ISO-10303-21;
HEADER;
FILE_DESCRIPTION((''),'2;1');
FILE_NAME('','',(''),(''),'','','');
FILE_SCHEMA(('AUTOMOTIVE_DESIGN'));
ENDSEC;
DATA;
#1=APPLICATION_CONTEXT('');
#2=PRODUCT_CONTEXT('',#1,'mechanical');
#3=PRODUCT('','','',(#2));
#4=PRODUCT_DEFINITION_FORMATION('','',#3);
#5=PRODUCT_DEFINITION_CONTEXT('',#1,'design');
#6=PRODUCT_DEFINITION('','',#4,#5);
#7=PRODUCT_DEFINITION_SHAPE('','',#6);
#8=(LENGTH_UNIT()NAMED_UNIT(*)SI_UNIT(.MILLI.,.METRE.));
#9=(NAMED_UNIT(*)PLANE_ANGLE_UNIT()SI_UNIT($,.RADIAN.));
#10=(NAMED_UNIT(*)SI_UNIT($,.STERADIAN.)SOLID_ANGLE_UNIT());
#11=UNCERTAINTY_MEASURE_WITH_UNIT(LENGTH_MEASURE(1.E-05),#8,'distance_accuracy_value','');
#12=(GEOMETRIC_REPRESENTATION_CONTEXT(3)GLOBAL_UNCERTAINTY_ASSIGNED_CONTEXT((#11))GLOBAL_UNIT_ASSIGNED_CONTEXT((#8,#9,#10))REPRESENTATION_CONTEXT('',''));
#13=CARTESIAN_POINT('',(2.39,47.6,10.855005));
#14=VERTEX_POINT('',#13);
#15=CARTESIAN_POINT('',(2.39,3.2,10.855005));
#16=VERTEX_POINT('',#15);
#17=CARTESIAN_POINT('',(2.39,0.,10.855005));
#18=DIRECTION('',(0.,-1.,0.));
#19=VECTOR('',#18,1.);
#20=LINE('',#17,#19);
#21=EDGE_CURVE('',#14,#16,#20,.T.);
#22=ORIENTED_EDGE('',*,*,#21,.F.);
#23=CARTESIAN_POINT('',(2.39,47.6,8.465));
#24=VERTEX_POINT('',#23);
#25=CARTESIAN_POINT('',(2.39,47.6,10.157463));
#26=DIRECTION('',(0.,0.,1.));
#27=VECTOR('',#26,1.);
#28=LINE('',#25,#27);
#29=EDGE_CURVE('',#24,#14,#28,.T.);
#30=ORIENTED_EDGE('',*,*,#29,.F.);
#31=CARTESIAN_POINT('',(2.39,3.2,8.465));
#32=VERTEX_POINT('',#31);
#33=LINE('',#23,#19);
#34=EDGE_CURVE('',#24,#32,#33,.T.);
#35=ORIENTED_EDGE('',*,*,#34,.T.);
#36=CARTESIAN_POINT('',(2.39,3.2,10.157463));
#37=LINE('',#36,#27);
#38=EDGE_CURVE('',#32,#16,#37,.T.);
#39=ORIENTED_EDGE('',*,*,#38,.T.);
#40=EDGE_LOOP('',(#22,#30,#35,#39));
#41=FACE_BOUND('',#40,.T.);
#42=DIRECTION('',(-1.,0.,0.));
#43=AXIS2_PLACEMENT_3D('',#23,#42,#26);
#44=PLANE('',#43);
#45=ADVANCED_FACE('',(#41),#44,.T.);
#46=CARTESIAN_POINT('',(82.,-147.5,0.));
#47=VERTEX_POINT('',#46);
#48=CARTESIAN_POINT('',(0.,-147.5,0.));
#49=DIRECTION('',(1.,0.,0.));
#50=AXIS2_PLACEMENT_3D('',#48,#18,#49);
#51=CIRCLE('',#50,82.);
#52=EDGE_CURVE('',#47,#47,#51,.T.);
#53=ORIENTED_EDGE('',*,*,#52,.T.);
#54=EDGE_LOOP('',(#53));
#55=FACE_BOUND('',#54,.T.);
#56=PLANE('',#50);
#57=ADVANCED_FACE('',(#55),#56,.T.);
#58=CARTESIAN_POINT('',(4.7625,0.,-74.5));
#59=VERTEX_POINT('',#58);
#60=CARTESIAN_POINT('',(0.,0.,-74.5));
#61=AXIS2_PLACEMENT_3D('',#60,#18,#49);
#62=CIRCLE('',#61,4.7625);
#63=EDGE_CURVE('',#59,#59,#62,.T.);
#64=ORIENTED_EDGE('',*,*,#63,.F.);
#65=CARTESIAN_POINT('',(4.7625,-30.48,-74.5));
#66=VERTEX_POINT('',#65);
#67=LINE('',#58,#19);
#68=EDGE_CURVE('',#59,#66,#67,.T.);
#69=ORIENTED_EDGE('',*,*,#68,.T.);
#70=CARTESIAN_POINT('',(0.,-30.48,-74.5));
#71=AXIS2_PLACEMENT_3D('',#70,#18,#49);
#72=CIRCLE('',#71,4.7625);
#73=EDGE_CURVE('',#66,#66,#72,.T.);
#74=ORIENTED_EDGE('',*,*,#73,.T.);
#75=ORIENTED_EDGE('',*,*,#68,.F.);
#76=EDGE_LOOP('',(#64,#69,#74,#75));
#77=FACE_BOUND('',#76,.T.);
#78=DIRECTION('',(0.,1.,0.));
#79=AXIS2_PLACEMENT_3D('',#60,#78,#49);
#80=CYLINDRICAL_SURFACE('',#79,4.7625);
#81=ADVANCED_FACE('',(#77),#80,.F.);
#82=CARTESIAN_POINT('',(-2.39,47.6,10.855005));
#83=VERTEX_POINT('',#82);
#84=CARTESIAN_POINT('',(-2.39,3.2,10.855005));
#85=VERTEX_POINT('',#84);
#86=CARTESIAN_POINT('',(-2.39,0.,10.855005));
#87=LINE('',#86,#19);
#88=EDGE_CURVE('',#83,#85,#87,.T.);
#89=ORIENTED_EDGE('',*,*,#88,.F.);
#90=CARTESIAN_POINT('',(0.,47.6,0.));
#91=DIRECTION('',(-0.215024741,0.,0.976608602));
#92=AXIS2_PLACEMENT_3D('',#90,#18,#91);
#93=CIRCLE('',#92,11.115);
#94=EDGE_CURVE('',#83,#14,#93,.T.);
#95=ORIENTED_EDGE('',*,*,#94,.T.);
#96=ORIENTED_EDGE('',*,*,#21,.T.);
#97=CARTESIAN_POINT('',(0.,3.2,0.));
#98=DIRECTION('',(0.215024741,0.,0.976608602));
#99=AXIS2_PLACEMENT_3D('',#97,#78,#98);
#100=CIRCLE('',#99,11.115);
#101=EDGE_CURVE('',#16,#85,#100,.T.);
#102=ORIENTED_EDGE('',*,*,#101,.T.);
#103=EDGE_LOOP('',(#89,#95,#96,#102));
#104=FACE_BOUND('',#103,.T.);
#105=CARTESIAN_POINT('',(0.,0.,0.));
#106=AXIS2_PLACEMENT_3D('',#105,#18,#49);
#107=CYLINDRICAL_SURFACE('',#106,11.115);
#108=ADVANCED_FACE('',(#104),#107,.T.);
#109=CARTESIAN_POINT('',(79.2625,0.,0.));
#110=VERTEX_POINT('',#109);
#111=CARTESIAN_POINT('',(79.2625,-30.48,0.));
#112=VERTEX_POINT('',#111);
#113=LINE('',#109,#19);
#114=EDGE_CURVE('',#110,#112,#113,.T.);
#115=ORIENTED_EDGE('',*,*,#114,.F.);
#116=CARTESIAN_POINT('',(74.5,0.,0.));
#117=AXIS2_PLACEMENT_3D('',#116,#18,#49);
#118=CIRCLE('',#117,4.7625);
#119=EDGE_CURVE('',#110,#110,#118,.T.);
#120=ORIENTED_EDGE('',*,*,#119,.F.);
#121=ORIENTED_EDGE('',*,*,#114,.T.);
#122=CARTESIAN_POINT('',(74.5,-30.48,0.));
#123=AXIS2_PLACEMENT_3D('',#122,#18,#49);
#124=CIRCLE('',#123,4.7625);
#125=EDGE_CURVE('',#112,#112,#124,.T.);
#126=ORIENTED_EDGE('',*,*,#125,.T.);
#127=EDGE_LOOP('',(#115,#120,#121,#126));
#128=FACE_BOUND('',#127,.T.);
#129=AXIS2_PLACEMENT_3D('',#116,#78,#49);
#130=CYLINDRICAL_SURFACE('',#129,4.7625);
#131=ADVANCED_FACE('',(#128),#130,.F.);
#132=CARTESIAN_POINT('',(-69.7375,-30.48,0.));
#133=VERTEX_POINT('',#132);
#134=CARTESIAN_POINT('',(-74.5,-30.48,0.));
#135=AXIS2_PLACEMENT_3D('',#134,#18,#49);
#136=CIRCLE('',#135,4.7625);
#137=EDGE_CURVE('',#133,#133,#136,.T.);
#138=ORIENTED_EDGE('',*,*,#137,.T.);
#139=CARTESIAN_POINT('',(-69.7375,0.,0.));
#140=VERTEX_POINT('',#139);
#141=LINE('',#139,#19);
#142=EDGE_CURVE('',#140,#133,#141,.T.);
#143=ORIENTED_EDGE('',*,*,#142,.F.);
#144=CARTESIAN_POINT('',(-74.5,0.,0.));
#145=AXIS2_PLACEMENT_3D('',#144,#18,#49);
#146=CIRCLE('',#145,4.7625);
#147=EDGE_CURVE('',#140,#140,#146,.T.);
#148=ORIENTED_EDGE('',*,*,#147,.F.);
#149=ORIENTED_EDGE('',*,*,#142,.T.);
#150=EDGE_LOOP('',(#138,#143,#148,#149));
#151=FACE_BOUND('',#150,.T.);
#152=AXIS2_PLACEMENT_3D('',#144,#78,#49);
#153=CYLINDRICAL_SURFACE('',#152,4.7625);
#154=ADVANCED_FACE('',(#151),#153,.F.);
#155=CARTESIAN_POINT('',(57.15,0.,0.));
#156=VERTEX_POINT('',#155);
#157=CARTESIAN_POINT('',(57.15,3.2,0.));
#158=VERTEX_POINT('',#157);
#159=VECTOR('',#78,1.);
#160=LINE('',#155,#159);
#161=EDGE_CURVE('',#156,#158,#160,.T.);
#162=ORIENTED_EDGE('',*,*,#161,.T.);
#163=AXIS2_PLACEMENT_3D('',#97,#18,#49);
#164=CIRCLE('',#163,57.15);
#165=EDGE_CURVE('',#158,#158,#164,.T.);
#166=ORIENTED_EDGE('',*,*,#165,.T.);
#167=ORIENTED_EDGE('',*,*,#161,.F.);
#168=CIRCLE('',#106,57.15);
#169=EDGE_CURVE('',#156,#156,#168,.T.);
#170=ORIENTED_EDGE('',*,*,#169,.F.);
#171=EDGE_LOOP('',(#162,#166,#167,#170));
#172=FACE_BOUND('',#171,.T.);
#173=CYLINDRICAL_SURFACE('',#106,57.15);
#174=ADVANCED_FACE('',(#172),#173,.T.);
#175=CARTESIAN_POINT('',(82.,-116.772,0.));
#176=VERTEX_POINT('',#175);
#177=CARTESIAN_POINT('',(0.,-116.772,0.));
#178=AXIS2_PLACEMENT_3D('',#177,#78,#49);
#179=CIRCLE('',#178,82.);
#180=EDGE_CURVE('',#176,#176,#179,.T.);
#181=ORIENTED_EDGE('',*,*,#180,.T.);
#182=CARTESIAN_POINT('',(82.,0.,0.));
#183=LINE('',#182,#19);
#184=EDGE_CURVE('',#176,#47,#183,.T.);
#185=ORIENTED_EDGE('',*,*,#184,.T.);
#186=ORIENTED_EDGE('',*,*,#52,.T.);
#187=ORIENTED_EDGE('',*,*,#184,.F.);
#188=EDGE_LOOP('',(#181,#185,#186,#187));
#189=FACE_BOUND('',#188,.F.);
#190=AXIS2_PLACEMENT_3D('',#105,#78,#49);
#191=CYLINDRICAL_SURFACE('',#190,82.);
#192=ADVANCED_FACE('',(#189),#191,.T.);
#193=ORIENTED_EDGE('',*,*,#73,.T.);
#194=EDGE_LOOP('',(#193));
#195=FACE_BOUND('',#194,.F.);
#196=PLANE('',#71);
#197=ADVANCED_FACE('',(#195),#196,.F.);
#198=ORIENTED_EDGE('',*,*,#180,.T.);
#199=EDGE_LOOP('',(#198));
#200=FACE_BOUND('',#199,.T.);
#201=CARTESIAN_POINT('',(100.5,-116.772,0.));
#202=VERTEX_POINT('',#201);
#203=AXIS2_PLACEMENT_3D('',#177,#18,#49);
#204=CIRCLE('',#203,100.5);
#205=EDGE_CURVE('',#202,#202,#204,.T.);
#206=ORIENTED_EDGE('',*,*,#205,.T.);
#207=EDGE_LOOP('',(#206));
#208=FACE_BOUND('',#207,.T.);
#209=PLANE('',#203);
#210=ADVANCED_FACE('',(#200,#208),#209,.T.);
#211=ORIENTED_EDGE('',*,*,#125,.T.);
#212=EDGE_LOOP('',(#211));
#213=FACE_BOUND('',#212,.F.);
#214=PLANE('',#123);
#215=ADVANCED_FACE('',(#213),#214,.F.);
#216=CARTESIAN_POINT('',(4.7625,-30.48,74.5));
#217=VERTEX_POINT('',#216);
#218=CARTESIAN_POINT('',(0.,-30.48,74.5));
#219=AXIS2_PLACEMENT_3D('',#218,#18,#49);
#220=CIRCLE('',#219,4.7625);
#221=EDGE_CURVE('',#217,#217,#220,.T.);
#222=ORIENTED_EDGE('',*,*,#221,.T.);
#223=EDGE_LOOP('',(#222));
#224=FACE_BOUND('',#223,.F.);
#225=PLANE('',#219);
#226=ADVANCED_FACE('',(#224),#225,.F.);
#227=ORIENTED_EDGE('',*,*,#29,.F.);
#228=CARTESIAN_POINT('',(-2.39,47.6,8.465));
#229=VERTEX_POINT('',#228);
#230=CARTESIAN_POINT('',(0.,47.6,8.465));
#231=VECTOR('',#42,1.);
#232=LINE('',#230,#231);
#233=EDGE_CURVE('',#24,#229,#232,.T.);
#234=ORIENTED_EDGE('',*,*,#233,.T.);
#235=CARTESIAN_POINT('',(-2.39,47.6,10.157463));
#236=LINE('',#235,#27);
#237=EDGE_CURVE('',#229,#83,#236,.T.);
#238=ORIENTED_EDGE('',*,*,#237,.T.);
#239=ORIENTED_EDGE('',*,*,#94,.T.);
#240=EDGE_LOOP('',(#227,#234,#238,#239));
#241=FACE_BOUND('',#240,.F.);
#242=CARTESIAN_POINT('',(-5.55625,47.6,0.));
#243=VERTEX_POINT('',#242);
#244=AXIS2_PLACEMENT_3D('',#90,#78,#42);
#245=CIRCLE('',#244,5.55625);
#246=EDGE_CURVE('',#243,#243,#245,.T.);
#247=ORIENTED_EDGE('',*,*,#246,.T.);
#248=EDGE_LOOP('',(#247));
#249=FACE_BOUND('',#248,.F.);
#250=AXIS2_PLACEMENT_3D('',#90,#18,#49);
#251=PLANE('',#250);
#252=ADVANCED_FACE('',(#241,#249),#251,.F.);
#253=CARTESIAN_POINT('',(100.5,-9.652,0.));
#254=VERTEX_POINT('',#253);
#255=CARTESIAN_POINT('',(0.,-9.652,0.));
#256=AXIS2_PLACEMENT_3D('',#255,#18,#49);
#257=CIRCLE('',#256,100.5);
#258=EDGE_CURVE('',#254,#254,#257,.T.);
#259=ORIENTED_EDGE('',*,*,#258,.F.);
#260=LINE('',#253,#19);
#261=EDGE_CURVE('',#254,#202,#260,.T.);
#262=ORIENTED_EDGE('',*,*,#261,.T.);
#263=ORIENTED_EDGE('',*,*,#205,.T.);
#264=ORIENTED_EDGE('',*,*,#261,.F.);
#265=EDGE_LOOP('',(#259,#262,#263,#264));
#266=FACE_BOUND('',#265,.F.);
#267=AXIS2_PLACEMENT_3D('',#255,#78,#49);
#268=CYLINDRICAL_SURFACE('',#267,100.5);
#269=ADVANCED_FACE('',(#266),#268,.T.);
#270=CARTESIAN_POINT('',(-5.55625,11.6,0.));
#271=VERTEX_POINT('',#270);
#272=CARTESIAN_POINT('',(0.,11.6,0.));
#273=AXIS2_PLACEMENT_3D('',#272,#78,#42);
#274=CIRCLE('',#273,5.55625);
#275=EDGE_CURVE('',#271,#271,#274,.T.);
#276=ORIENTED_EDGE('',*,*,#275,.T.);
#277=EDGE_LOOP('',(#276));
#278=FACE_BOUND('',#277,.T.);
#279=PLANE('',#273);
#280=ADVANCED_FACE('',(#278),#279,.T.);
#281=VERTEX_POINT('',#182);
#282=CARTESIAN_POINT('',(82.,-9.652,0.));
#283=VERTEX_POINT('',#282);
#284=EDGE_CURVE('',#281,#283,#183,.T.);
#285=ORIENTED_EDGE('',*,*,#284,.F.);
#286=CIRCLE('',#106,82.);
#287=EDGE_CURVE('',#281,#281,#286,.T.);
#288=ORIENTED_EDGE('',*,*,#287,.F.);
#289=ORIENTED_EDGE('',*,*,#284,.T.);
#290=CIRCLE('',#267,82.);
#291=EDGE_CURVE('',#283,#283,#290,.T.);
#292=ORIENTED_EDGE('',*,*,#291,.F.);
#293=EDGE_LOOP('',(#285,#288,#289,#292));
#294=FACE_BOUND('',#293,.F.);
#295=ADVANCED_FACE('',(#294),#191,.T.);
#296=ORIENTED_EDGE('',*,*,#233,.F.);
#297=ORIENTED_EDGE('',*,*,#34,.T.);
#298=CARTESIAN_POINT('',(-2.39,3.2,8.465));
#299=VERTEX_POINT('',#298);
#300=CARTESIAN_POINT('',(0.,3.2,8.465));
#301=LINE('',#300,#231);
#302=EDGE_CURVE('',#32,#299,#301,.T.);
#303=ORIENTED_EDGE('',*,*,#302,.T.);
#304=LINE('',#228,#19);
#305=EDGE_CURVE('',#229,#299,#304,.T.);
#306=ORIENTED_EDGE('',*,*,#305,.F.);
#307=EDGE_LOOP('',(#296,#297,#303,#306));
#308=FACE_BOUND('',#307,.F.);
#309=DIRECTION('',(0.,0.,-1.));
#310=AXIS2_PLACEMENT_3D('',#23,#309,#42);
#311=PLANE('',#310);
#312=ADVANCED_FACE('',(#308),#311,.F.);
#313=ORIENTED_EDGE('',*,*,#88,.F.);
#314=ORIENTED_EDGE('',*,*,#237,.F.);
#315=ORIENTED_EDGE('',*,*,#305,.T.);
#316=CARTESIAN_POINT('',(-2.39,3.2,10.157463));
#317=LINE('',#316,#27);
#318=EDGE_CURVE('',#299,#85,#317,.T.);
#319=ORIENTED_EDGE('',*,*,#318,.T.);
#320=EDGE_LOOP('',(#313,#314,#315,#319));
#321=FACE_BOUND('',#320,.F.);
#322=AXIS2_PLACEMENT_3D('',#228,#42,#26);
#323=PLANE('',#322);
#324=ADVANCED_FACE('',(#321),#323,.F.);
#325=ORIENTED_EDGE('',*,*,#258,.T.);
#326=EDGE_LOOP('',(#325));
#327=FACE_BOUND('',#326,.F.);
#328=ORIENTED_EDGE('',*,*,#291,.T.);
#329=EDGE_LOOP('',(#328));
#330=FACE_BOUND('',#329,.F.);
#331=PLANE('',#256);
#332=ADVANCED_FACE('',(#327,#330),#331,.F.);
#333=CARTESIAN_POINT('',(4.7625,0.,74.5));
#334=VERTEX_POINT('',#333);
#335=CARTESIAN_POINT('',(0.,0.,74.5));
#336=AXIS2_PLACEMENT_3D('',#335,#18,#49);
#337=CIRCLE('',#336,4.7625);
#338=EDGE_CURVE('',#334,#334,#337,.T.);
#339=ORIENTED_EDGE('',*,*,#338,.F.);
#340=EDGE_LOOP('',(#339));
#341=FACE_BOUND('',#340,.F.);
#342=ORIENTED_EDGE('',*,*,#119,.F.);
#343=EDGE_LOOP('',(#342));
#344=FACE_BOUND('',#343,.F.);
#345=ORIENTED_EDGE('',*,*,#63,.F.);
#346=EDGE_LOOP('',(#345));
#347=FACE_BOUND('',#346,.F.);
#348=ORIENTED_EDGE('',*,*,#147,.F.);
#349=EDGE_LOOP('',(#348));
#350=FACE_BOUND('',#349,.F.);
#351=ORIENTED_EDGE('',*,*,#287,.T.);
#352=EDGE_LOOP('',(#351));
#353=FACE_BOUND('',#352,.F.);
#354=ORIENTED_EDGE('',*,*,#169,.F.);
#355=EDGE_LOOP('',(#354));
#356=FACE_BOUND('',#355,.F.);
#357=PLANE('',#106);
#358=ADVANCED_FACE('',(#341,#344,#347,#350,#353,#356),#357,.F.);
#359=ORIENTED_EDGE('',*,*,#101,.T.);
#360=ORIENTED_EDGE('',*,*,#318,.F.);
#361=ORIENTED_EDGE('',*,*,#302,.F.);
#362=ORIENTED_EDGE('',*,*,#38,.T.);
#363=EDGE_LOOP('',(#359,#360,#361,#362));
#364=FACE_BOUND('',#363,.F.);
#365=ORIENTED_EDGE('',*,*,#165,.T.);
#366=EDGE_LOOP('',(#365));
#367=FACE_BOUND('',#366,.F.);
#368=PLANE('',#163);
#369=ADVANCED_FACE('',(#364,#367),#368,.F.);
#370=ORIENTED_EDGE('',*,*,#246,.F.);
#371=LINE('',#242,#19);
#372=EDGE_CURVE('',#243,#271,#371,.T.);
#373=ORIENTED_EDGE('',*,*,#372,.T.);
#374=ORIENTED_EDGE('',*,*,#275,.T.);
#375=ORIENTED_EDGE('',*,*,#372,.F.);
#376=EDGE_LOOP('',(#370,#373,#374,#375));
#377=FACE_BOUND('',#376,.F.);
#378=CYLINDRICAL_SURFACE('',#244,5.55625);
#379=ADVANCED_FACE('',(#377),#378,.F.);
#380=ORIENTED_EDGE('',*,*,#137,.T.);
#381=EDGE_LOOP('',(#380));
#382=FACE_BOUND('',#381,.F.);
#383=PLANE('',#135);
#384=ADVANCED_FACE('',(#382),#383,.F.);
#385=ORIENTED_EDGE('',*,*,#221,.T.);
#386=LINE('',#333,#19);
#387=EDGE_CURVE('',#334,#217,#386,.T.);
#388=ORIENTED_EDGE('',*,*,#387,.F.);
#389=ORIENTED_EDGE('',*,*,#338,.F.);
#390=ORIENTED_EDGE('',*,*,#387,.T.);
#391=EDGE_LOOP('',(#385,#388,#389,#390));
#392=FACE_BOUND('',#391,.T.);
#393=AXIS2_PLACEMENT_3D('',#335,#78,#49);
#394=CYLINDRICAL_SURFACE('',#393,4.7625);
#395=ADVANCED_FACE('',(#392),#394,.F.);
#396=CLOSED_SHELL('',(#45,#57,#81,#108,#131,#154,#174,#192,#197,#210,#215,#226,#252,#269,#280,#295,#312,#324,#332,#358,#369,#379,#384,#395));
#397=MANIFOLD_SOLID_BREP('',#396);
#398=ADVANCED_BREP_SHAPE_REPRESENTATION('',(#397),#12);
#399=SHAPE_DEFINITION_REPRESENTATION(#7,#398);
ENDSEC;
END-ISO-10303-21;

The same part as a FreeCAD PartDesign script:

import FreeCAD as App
import Part
import Sketcher
from FreeCAD import Vector

doc = App.newDocument("Part")
body = doc.addObject("PartDesign::Body", "Body")

# Sketch on XZ plane
sketch1 = doc.addObject("Sketcher::SketchObject", "Sketch")
body.addObject(sketch1)
sketch1.AttachmentSupport = (doc.XZ_Plane, [""])
sketch1.MapMode = "FlatFace"
sketch1.addGeometry(Part.Circle(Vector(0, 0, 0), Vector(0, 0, 1), 82), False)
sketch1.addConstraint(Sketcher.Constraint("Coincident", 0, 3, -1, 1))
sketch1.addConstraint(Sketcher.Constraint("Diameter", 0, 164.0))
pad1 = doc.addObject("PartDesign::Pad", "Pad")
body.addObject(pad1)
pad1.Profile = sketch1
pad1.Length = 147.5

# Sketch on XZ plane
sketch2 = doc.addObject("Sketcher::SketchObject", "Sketch001")
body.addObject(sketch2)
sketch2.AttachmentSupport = (doc.XZ_Plane, [""])
sketch2.MapMode = "FlatFace"
sketch2.AttachmentOffset = App.Placement(Vector(0, 0, 9.652), App.Rotation())
sketch2.addGeometry(Part.Circle(Vector(0, 0, 0), Vector(0, 0, 1), 100), False)
sketch2.addConstraint(Sketcher.Constraint("Coincident", 0, 3, -1, 1))
sketch2.addConstraint(Sketcher.Constraint("Diameter", 0, 201.0))
pad2 = doc.addObject("PartDesign::Pad", "Pad001")
body.addObject(pad2)
pad2.Profile = sketch2
pad2.Length = 107.12

# Sketch on XZ plane
sketch3 = doc.addObject("Sketcher::SketchObject", "Sketch002")
body.addObject(sketch3)
sketch3.AttachmentSupport = (doc.XZ_Plane, [""])
sketch3.MapMode = "FlatFace"
sketch3.addGeometry(Part.Circle(Vector(0, 0, 0), Vector(0, 0, 1), 57), False)
sketch3.addConstraint(Sketcher.Constraint("Coincident", 0, 3, -1, 1))
sketch3.addConstraint(Sketcher.Constraint("Diameter", 0, 114.3))
pad3 = doc.addObject("PartDesign::Pad", "Pad002")
body.addObject(pad3)
pad3.Profile = sketch3
pad3.Length = 3.2
pad3.Reversed = True

# Sketch on XZ plane
sketch4 = doc.addObject("Sketcher::SketchObject", "Sketch003")
body.addObject(sketch4)
sketch4.AttachmentSupport = (doc.XZ_Plane, [""])
sketch4.MapMode = "FlatFace"
sketch4.addGeometry(Part.Circle(Vector(0, 0, 0), Vector(0, 0, 1), 11), False)
sketch4.addConstraint(Sketcher.Constraint("Coincident", 0, 3, -1, 1))
sketch4.addConstraint(Sketcher.Constraint("Diameter", 0, 22.23))
pad4 = doc.addObject("PartDesign::Pad", "Pad003")
body.addObject(pad4)
pad4.Profile = sketch4
pad4.Length = 47.6
pad4.Reversed = True

# Sketch on XZ plane
sketch5 = doc.addObject("Sketcher::SketchObject", "Sketch004")
body.addObject(sketch5)
sketch5.AttachmentSupport = (doc.XZ_Plane, [""])
sketch5.MapMode = "FlatFace"
sketch5.AttachmentOffset = App.Placement(Vector(0, 0, -47.6), App.Rotation())
sketch5.addGeometry(Part.LineSegment(Vector(2.4, 11.8, 0), Vector(2.4, 8.5, 0)), False)
sketch5.addGeometry(Part.LineSegment(Vector(2.4, 8.5, 0), Vector(-2.4, 8.5, 0)), False)
sketch5.addGeometry(Part.LineSegment(Vector(-2.4, 8.5, 0), Vector(-2.4, 11.8, 0)), False)
sketch5.addGeometry(Part.LineSegment(Vector(-2.4, 11.8, 0), Vector(2.4, 11.8, 0)), False)
sketch5.addConstraint(Sketcher.Constraint("Coincident", 0, 2, 1, 1))
sketch5.addConstraint(Sketcher.Constraint("Coincident", 1, 2, 2, 1))
sketch5.addConstraint(Sketcher.Constraint("Coincident", 2, 2, 3, 1))
sketch5.addConstraint(Sketcher.Constraint("Coincident", 3, 2, 0, 1))
sketch5.addConstraint(Sketcher.Constraint("Vertical", 0))
sketch5.addConstraint(Sketcher.Constraint("Horizontal", 1))
sketch5.addConstraint(Sketcher.Constraint("Vertical", 2))
sketch5.addConstraint(Sketcher.Constraint("Horizontal", 3))
sketch5.addConstraint(Sketcher.Constraint("DistanceX", 1, 2, 1, 1, 4.78))
sketch5.addConstraint(Sketcher.Constraint("DistanceX", -1, 1, 0, 2, 2.39))
sketch5.addConstraint(Sketcher.Constraint("DistanceY", -1, 1, 0, 2, 8.465))
sketch5.addConstraint(Sketcher.Constraint("DistanceY", 0, 2, 0, 1, 3.384925))
pocket1 = doc.addObject("PartDesign::Pocket", "Pocket")
body.addObject(pocket1)
pocket1.Profile = sketch5
pocket1.Length = 44.4
pocket1.Reversed = True

# Sketch on XZ plane
sketch6 = doc.addObject("Sketcher::SketchObject", "Sketch005")
body.addObject(sketch6)
sketch6.AttachmentSupport = (doc.XZ_Plane, [""])
sketch6.MapMode = "FlatFace"
sketch6.AttachmentOffset = App.Placement(Vector(0, 0, -47.6), App.Rotation())
sketch6.addGeometry(Part.Circle(Vector(0, 0, 0), Vector(0, 0, 1), 6), False)
sketch6.addConstraint(Sketcher.Constraint("Coincident", 0, 3, -1, 1))
sketch6.addConstraint(Sketcher.Constraint("Diameter", 0, 11.1125))
pocket2 = doc.addObject("PartDesign::Pocket", "Pocket001")
body.addObject(pocket2)
pocket2.Profile = sketch6
pocket2.Length = 36
pocket2.Reversed = True

# Sketch on XZ plane
sketch7 = doc.addObject("Sketcher::SketchObject", "Sketch006")
body.addObject(sketch7)
sketch7.AttachmentSupport = (doc.XZ_Plane, [""])
sketch7.MapMode = "FlatFace"
sketch7.addGeometry(Part.Circle(Vector(0, 74.5, 0), Vector(0, 0, 1), 4.8), False)
sketch7.addGeometry(Part.Circle(Vector(-74.5, 0, 0), Vector(0, 0, 1), 4.8), False)
sketch7.addGeometry(Part.Circle(Vector(0, -74.5, 0), Vector(0, 0, 1), 4.8), False)
sketch7.addGeometry(Part.Circle(Vector(74.5, 0, 0), Vector(0, 0, 1), 4.8), False)
sketch7.addConstraint(Sketcher.Constraint("Equal", 0, 1))
sketch7.addConstraint(Sketcher.Constraint("Equal", 1, 2))
sketch7.addConstraint(Sketcher.Constraint("Equal", 2, 3))
sketch7.addConstraint(Sketcher.Constraint("Symmetric", 0, 3, 2, 3, -1, 1))
sketch7.addConstraint(Sketcher.Constraint("Symmetric", 1, 3, 3, 3, -1, 1))
sketch7.addConstraint(Sketcher.Constraint("PointOnObject", 0, 3, -2))
sketch7.addConstraint(Sketcher.Constraint("PointOnObject", 1, 3, -1))
sketch7.addConstraint(Sketcher.Constraint("Diameter", 0, 9.525))
sketch7.addConstraint(Sketcher.Constraint("DistanceY", 2, 3, 0, 3, 149.0))
sketch7.addConstraint(Sketcher.Constraint("DistanceX", 1, 3, 3, 3, 149.0))
pocket3 = doc.addObject("PartDesign::Pocket", "Pocket002")
body.addObject(pocket3)
pocket3.Profile = sketch7
pocket3.Length = 30.48
pocket3.Reversed = True

doc.recompute()
